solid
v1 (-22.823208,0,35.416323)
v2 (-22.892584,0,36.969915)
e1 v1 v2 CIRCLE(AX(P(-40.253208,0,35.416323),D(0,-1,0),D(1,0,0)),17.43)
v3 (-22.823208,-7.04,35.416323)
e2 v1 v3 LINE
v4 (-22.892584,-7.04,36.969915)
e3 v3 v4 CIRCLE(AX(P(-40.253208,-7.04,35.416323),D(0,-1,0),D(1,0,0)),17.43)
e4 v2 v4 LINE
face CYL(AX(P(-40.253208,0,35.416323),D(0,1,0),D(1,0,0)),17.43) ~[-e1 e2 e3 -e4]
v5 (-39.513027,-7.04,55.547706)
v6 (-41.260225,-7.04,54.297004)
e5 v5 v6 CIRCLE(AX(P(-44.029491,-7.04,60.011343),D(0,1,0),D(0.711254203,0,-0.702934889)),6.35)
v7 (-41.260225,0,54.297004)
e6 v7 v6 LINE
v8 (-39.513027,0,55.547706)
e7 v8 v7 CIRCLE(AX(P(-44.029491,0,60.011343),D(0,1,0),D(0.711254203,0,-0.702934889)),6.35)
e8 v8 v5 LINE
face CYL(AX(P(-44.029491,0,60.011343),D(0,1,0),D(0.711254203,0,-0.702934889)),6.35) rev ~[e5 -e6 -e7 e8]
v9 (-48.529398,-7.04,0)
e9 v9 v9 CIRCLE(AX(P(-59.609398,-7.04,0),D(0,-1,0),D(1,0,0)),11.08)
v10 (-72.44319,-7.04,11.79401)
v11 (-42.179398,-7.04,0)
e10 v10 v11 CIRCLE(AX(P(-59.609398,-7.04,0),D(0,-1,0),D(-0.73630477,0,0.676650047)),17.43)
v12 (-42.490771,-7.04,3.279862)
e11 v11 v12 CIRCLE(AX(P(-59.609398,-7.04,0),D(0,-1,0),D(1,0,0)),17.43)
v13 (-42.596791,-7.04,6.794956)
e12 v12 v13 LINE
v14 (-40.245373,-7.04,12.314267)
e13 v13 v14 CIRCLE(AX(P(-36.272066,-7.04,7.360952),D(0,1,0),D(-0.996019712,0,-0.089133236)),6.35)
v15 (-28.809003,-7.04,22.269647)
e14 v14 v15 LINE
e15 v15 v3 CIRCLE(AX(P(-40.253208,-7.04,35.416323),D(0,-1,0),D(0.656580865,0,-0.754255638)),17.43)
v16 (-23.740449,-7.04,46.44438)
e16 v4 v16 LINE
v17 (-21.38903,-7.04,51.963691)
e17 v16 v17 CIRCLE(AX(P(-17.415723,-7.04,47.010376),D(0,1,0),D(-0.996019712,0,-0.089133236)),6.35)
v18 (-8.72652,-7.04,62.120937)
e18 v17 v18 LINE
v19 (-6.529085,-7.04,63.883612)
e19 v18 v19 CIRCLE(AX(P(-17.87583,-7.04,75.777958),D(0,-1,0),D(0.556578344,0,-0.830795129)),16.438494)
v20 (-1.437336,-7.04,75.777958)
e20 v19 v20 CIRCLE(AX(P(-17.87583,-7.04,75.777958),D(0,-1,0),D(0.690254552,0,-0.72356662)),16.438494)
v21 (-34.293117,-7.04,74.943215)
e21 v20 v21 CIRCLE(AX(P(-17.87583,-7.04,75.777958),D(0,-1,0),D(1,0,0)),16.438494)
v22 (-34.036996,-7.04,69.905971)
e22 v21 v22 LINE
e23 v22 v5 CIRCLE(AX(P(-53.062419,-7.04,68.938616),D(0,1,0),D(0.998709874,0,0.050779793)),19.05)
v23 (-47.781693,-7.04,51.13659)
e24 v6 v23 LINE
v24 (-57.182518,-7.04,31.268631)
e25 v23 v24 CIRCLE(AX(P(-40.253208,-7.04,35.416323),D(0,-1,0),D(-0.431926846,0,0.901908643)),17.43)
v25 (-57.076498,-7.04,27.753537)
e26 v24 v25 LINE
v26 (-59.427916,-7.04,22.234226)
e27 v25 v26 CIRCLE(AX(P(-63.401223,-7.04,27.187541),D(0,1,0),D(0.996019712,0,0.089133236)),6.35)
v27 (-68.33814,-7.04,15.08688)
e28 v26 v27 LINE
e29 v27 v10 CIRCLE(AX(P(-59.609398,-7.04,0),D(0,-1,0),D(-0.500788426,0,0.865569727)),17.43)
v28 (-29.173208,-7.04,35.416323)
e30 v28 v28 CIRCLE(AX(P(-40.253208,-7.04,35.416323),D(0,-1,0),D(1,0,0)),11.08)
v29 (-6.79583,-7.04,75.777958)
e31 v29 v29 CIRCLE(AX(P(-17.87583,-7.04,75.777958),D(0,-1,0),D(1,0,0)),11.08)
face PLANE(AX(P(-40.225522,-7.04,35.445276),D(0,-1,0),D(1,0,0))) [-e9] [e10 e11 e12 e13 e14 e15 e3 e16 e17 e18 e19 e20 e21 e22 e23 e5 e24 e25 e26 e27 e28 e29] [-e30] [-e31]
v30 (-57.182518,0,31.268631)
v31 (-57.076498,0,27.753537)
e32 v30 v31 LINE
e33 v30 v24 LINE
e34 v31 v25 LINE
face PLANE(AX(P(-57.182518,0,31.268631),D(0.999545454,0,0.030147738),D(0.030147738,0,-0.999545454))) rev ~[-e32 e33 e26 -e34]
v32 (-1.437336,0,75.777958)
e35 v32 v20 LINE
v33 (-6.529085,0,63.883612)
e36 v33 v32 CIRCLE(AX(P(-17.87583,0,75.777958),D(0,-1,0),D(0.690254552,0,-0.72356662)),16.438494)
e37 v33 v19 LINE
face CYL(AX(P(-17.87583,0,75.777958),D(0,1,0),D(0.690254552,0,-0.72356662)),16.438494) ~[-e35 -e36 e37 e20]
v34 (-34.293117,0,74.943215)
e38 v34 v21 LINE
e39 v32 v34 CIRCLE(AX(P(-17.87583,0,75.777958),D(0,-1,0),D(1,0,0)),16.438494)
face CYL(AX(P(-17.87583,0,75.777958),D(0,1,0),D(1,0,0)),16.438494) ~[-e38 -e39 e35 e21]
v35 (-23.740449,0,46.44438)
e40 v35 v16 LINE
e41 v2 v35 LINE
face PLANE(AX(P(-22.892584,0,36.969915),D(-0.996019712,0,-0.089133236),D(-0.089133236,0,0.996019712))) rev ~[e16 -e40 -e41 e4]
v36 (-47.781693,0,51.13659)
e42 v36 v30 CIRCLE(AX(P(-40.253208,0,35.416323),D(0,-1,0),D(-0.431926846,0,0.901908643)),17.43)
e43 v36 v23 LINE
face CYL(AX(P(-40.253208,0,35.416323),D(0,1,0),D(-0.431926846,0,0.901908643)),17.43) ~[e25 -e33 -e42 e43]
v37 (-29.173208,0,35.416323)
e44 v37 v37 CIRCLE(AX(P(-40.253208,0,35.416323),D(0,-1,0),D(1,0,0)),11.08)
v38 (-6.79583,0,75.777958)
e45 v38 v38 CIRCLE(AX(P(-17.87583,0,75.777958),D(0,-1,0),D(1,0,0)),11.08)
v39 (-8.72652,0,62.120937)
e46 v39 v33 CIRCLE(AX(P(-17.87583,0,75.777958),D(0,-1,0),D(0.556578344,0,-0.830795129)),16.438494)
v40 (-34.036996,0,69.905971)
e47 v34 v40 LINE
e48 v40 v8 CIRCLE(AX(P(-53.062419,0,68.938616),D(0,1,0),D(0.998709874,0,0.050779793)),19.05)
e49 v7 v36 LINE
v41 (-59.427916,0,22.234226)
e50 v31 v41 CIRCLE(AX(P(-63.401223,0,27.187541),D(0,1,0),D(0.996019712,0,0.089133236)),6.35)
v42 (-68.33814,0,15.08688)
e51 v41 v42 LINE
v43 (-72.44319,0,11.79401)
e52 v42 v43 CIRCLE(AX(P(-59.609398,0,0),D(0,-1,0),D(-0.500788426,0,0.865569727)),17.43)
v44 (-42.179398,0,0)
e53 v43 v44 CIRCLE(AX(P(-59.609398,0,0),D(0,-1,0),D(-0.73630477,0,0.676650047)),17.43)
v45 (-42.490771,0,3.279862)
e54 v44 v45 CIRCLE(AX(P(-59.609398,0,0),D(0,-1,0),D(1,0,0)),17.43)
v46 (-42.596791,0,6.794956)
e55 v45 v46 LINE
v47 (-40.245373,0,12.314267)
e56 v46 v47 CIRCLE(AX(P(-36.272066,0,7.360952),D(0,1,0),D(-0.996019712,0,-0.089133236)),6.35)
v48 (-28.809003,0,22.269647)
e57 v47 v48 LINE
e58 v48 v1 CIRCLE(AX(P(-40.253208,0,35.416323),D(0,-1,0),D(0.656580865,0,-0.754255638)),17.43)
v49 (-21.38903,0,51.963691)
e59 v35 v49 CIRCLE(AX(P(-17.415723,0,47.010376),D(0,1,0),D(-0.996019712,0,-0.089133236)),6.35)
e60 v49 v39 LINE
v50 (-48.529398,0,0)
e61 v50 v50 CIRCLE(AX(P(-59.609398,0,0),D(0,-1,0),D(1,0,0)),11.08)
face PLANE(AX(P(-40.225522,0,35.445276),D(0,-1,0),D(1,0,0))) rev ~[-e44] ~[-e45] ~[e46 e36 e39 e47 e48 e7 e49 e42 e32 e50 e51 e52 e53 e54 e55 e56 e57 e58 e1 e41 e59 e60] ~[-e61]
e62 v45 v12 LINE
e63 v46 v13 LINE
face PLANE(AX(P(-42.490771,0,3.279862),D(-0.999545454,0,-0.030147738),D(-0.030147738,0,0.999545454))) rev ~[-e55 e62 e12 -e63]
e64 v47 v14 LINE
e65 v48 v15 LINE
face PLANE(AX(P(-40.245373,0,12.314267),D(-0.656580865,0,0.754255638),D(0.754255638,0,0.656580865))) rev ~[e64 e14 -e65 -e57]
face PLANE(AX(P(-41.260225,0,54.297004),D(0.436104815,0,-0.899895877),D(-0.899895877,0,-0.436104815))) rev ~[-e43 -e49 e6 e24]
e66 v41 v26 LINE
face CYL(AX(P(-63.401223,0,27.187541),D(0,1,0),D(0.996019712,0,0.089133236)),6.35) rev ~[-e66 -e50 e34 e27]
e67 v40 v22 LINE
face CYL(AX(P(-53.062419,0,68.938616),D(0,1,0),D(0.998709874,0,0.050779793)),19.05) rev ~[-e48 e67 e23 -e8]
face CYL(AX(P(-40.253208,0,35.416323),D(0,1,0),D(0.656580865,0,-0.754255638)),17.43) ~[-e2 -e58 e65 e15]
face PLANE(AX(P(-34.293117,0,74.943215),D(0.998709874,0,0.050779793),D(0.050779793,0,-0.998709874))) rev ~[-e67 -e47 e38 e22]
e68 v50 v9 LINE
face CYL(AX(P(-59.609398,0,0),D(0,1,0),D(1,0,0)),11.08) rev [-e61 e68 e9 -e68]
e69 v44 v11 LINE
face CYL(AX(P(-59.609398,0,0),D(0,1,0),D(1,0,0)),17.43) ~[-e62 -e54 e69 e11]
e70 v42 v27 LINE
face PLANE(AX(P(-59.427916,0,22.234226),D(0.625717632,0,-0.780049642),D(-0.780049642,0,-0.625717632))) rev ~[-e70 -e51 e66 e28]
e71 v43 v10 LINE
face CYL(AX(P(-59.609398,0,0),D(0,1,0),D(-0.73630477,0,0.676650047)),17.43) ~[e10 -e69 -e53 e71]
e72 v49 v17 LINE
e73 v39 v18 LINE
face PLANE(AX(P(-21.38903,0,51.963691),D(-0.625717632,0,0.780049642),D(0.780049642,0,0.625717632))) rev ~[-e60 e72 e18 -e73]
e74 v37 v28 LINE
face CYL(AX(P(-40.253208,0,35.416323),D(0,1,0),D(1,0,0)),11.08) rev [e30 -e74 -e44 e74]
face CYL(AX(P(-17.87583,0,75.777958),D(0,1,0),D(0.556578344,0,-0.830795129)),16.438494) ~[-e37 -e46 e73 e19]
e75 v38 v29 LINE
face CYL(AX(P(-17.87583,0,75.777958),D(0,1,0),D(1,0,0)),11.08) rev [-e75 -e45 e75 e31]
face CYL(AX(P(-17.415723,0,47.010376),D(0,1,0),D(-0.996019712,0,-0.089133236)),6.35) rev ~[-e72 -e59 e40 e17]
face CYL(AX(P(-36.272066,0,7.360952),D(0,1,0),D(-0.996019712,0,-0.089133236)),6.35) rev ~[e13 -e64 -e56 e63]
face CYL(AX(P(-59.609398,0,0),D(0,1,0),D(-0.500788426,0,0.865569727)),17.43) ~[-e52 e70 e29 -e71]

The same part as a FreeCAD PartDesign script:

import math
import FreeCAD as App
import Part
import Sketcher
Q = App.Units.Quantity

doc = App.newDocument("Part")
body = doc.addObject("PartDesign::Body", "Body")

# Sketch on XZ plane
sketch1 = body.newObject("Sketcher::SketchObject", "Sketch")
sketch1.AttachmentSupport = (doc.getObject("XZ_Plane"), [""])
sketch1.MapMode = "FlatFace"
sketch1.addGeometry([
    Part.ArcOfCircle(Part.Circle(App.Vector(-40.253208, 35.416323, 0), App.Vector(0, 0, 1), 17.43), math.radians(-48.960372), math.radians(0)),  # 0
    Part.ArcOfCircle(Part.Circle(App.Vector(-40.253208, 35.416323, 0), App.Vector(0, 0, 1), 17.43), math.radians(0), math.radians(5.113745)),  # 1
    Part.LineSegment(App.Vector(-22.892584, 36.969915, 0), App.Vector(-23.740449, 46.44438, 0)),  # 2
    Part.ArcOfCircle(Part.Circle(App.Vector(-17.415723, 47.010376, 0), App.Vector(0, 0, 1), 6.35), math.radians(128.734879), math.radians(185.113745)),  # 3
    Part.LineSegment(App.Vector(-21.38903, 51.963691, 0), App.Vector(-8.72652, 62.120937, 0)),  # 4
    Part.ArcOfCircle(Part.Circle(App.Vector(-17.87583, 75.777958, 0), App.Vector(0, 0, 1), 16.438494), math.radians(-56.180504), math.radians(-46.349738)),  # 5
    Part.ArcOfCircle(Part.Circle(App.Vector(-17.87583, 75.777958, 0), App.Vector(0, 0, 1), 16.438494), math.radians(-46.349738), math.radians(0)),  # 6
    Part.ArcOfCircle(Part.Circle(App.Vector(-17.87583, 75.777958, 0), App.Vector(0, 0, 1), 16.438494), math.radians(0), math.radians(182.91072)),  # 7
    Part.LineSegment(App.Vector(-34.293117, 74.943215, 0), App.Vector(-34.036996, 69.905971, 0)),  # 8
    Part.ArcOfCircle(Part.Circle(App.Vector(-53.062419, 68.938616, 0), App.Vector(0, 0, 1), 19.05), math.radians(-44.662947), math.radians(2.91072)),  # 9
    Part.ArcOfCircle(Part.Circle(App.Vector(-44.029491, 60.011343, 0), App.Vector(0, 0, 1), 6.35), math.radians(-64.144384), math.radians(-44.662947)),  # 10
    Part.LineSegment(App.Vector(-41.260225, 54.297004, 0), App.Vector(-47.781693, 51.13659, 0)),  # 11
    Part.ArcOfCircle(Part.Circle(App.Vector(-40.253208, 35.416323, 0), App.Vector(0, 0, 1), 17.43), math.radians(115.589905), math.radians(193.766335)),  # 12
    Part.LineSegment(App.Vector(-57.182518, 31.268631, 0), App.Vector(-57.076498, 27.753537, 0)),  # 13
    Part.ArcOfCircle(Part.Circle(App.Vector(-63.401223, 27.187541, 0), App.Vector(0, 0, 1), 6.35), math.radians(-51.265121), math.radians(5.113745)),  # 14
    Part.LineSegment(App.Vector(-59.427916, 22.234226, 0), App.Vector(-68.33814, 15.08688, 0)),  # 15
    Part.ArcOfCircle(Part.Circle(App.Vector(-59.609398, 0, 0), App.Vector(0, 0, 1), 17.43), math.radians(120.052176), math.radians(137.417583)),  # 16
    Part.ArcOfCircle(Part.Circle(App.Vector(-59.609398, 0, 0), App.Vector(0, 0, 1), 17.43), math.radians(137.417583), math.radians(360)),  # 17
    Part.ArcOfCircle(Part.Circle(App.Vector(-59.609398, 0, 0), App.Vector(0, 0, 1), 17.43), math.radians(0), math.radians(10.846204)),  # 18
    Part.LineSegment(App.Vector(-42.490771, 3.279862, 0), App.Vector(-42.596791, 6.794956, 0)),  # 19
    Part.ArcOfCircle(Part.Circle(App.Vector(-36.272066, 7.360952, 0), App.Vector(0, 0, 1), 6.35), math.radians(128.734879), math.radians(185.113745)),  # 20
    Part.LineSegment(App.Vector(-40.245373, 12.314267, 0), App.Vector(-28.809003, 22.269647, 0)),  # 21
    Part.Circle(App.Vector(-59.609398, 0, 0), App.Vector(0, 0, 1), 11.08),  # 22
    Part.Circle(App.Vector(-40.253208, 35.416323, 0), App.Vector(0, 0, 1), 11.08),  # 23
    Part.Circle(App.Vector(-17.87583, 75.777958, 0), App.Vector(0, 0, 1), 11.08),  # 24
], False)
sketch1.addConstraint([
    Sketcher.Constraint("Coincident", 0, 2, 1, 1),
    Sketcher.Constraint("Coincident", 1, 2, 2, 1),
    Sketcher.Constraint("Coincident", 2, 2, 3, 2),
    Sketcher.Constraint("Coincident", 3, 1, 4, 1),
    Sketcher.Constraint("Coincident", 4, 2, 5, 1),
    Sketcher.Constraint("Coincident", 5, 2, 6, 1),
    Sketcher.Constraint("Coincident", 6, 2, 7, 1),
    Sketcher.Constraint("Coincident", 7, 2, 8, 1),
    Sketcher.Constraint("Coincident", 8, 2, 9, 2),
    Sketcher.Constraint("Coincident", 9, 1, 10, 2),
    Sketcher.Constraint("Coincident", 10, 1, 11, 1),
    Sketcher.Constraint("Coincident", 11, 2, 12, 1),
    Sketcher.Constraint("Coincident", 12, 2, 13, 1),
    Sketcher.Constraint("Coincident", 13, 2, 14, 2),
    Sketcher.Constraint("Coincident", 14, 1, 15, 1),
    Sketcher.Constraint("Coincident", 15, 2, 16, 1),
    Sketcher.Constraint("Coincident", 16, 2, 17, 1),
    Sketcher.Constraint("Coincident", 17, 2, 18, 1),
    Sketcher.Constraint("Coincident", 18, 2, 19, 1),
    Sketcher.Constraint("Coincident", 19, 2, 20, 2),
    Sketcher.Constraint("Coincident", 20, 1, 21, 1),
    Sketcher.Constraint("Coincident", 21, 2, 0, 1),
    Sketcher.Constraint("Coincident", 1, 3, 0, 3),
    Sketcher.Constraint("Coincident", 6, 3, 5, 3),
    Sketcher.Constraint("Coincident", 7, 3, 5, 3),
    Sketcher.Constraint("Coincident", 12, 3, 0, 3),
    Sketcher.Constraint("Coincident", 17, 3, 16, 3),
    Sketcher.Constraint("Coincident", 18, 3, 16, 3),
    Sketcher.Constraint("Coincident", 22, 3, 16, 3),
    Sketcher.Constraint("Coincident", 23, 3, 0, 3),
    Sketcher.Constraint("Coincident", 24, 3, 5, 3),
    Sketcher.Constraint("PointOnObject", 16, 3, -1),
    Sketcher.Constraint("PointOnObject", 17, 2, -1),
    Sketcher.Constraint("Radius", 3, Q("0.25 in")),
    Sketcher.Constraint("Radius", 9, Q("0.75 in")),
    Sketcher.Constraint("Radius", 10, Q("0.25 in")),
    Sketcher.Constraint("Radius", 14, Q("0.25 in")),
    Sketcher.Constraint("Radius", 20, Q("0.25 in")),
    Sketcher.Constraint("Diameter", 22, Q("22.16 mm")),
    Sketcher.Constraint("Diameter", 23, Q("22.16 mm")),
    Sketcher.Constraint("Diameter", 24, Q("22.16 mm")),
    Sketcher.Constraint("Radius", 0, Q("17.43 mm")),
    Sketcher.Constraint("Radius", 12, Q("17.43 mm")),
    Sketcher.Constraint("Radius", 16, Q("17.43 mm")),
    Sketcher.Constraint("Radius", 5, Q("16.438494 mm")),
    Sketcher.Constraint("DistanceX", 16, 3, -1, 1, Q("59.609398 mm")),
    Sketcher.Constraint("DistanceY", 14, 3, 10, 3, Q("32.823801 mm")),
    Sketcher.Constraint("DistanceX", 10, 1, 9, 1, Q("1.747199 mm")),
    Sketcher.Constraint("DistanceX", 11, 2, 10, 3, Q("3.752202 mm")),
    Sketcher.Constraint("Distance", 8, Q("5.043751 mm")),
    Sketcher.Constraint("Distance", 13, Q("3.516692 mm")),
    Sketcher.Constraint("Distance", 19, Q("3.516692 mm")),
    Sketcher.Constraint("Distance", 21, Q("15.162459 mm")),
    Sketcher.Constraint("DistanceX", 5, 3, -1, 1, Q("17.87583 mm")),
    Sketcher.Constraint("DistanceY", -1, 1, 5, 3, Q("75.777958 mm")),
    Sketcher.Constraint("DistanceX", 9, 3, -1, 1, Q("53.062419 mm")),
    Sketcher.Constraint("DistanceX", 10, 3, -1, 1, Q("44.029491 mm")),
    Sketcher.Constraint("DistanceY", -1, 1, 14, 3, Q("27.187541 mm")),
    Sketcher.Constraint("DistanceY", -1, 1, 20, 3, Q("7.360952 mm")),
    Sketcher.Constraint("DistanceX", 2, 2, -1, 1, Q("23.740449 mm")),
    Sketcher.Constraint("DistanceY", -1, 1, 2, 2, Q("46.44438 mm")),
    Sketcher.Constraint("DistanceX", 3, 1, -1, 1, Q("21.38903 mm")),
    Sketcher.Constraint("DistanceY", -1, 1, 3, 1, Q("51.963691 mm")),
    Sketcher.Constraint("DistanceX", 4, 2, -1, 1, Q("8.72652 mm")),
    Sketcher.Constraint("DistanceY", -1, 1, 6, 2, Q("75.777958 mm")),
    Sketcher.Constraint("DistanceY", -1, 1, 8, 2, Q("69.905971 mm")),
    Sketcher.Constraint("DistanceY", -1, 1, 11, 2, Q("51.13659 mm")),
    Sketcher.Constraint("DistanceX", 12, 2, -1, 1, Q("57.182518 mm")),
    Sketcher.Constraint("DistanceY", -1, 1, 12, 2, Q("31.268631 mm")),
    Sketcher.Constraint("DistanceX", 15, 2, -1, 1, Q("68.33814 mm")),
    Sketcher.Constraint("DistanceX", 16, 2, -1, 1, Q("72.44319 mm")),
    Sketcher.Constraint("DistanceX", 18, 2, -1, 1, Q("42.490771 mm")),
    Sketcher.Constraint("DistanceX", 19, 2, -1, 1, Q("42.596791 mm")),
    Sketcher.Constraint("DistanceX", 14, 3, 10, 3, Q("19.371732 mm")),
    Sketcher.Constraint("DistanceX", 1, 2, 3, 3, Q("5.476861 mm")),
    Sketcher.Constraint("DistanceY", 0, 2, 3, 1, Q("16.547369 mm")),
    Sketcher.Constraint("DistanceX", 5, 2, 6, 2, Q("5.091749 mm")),
    Sketcher.Constraint("DistanceX", 9, 1, 8, 2, Q("5.476031 mm")),
    Sketcher.Constraint("DistanceX", 14, 1, 13, 2, Q("2.351418 mm")),
    Sketcher.Constraint("DistanceX", 19, 2, 20, 1, Q("2.351418 mm")),
])
pad1 = body.newObject("PartDesign::Pad", "Pad")
pad1.Profile = sketch1
pad1.Length = 7.04

doc.recompute()
